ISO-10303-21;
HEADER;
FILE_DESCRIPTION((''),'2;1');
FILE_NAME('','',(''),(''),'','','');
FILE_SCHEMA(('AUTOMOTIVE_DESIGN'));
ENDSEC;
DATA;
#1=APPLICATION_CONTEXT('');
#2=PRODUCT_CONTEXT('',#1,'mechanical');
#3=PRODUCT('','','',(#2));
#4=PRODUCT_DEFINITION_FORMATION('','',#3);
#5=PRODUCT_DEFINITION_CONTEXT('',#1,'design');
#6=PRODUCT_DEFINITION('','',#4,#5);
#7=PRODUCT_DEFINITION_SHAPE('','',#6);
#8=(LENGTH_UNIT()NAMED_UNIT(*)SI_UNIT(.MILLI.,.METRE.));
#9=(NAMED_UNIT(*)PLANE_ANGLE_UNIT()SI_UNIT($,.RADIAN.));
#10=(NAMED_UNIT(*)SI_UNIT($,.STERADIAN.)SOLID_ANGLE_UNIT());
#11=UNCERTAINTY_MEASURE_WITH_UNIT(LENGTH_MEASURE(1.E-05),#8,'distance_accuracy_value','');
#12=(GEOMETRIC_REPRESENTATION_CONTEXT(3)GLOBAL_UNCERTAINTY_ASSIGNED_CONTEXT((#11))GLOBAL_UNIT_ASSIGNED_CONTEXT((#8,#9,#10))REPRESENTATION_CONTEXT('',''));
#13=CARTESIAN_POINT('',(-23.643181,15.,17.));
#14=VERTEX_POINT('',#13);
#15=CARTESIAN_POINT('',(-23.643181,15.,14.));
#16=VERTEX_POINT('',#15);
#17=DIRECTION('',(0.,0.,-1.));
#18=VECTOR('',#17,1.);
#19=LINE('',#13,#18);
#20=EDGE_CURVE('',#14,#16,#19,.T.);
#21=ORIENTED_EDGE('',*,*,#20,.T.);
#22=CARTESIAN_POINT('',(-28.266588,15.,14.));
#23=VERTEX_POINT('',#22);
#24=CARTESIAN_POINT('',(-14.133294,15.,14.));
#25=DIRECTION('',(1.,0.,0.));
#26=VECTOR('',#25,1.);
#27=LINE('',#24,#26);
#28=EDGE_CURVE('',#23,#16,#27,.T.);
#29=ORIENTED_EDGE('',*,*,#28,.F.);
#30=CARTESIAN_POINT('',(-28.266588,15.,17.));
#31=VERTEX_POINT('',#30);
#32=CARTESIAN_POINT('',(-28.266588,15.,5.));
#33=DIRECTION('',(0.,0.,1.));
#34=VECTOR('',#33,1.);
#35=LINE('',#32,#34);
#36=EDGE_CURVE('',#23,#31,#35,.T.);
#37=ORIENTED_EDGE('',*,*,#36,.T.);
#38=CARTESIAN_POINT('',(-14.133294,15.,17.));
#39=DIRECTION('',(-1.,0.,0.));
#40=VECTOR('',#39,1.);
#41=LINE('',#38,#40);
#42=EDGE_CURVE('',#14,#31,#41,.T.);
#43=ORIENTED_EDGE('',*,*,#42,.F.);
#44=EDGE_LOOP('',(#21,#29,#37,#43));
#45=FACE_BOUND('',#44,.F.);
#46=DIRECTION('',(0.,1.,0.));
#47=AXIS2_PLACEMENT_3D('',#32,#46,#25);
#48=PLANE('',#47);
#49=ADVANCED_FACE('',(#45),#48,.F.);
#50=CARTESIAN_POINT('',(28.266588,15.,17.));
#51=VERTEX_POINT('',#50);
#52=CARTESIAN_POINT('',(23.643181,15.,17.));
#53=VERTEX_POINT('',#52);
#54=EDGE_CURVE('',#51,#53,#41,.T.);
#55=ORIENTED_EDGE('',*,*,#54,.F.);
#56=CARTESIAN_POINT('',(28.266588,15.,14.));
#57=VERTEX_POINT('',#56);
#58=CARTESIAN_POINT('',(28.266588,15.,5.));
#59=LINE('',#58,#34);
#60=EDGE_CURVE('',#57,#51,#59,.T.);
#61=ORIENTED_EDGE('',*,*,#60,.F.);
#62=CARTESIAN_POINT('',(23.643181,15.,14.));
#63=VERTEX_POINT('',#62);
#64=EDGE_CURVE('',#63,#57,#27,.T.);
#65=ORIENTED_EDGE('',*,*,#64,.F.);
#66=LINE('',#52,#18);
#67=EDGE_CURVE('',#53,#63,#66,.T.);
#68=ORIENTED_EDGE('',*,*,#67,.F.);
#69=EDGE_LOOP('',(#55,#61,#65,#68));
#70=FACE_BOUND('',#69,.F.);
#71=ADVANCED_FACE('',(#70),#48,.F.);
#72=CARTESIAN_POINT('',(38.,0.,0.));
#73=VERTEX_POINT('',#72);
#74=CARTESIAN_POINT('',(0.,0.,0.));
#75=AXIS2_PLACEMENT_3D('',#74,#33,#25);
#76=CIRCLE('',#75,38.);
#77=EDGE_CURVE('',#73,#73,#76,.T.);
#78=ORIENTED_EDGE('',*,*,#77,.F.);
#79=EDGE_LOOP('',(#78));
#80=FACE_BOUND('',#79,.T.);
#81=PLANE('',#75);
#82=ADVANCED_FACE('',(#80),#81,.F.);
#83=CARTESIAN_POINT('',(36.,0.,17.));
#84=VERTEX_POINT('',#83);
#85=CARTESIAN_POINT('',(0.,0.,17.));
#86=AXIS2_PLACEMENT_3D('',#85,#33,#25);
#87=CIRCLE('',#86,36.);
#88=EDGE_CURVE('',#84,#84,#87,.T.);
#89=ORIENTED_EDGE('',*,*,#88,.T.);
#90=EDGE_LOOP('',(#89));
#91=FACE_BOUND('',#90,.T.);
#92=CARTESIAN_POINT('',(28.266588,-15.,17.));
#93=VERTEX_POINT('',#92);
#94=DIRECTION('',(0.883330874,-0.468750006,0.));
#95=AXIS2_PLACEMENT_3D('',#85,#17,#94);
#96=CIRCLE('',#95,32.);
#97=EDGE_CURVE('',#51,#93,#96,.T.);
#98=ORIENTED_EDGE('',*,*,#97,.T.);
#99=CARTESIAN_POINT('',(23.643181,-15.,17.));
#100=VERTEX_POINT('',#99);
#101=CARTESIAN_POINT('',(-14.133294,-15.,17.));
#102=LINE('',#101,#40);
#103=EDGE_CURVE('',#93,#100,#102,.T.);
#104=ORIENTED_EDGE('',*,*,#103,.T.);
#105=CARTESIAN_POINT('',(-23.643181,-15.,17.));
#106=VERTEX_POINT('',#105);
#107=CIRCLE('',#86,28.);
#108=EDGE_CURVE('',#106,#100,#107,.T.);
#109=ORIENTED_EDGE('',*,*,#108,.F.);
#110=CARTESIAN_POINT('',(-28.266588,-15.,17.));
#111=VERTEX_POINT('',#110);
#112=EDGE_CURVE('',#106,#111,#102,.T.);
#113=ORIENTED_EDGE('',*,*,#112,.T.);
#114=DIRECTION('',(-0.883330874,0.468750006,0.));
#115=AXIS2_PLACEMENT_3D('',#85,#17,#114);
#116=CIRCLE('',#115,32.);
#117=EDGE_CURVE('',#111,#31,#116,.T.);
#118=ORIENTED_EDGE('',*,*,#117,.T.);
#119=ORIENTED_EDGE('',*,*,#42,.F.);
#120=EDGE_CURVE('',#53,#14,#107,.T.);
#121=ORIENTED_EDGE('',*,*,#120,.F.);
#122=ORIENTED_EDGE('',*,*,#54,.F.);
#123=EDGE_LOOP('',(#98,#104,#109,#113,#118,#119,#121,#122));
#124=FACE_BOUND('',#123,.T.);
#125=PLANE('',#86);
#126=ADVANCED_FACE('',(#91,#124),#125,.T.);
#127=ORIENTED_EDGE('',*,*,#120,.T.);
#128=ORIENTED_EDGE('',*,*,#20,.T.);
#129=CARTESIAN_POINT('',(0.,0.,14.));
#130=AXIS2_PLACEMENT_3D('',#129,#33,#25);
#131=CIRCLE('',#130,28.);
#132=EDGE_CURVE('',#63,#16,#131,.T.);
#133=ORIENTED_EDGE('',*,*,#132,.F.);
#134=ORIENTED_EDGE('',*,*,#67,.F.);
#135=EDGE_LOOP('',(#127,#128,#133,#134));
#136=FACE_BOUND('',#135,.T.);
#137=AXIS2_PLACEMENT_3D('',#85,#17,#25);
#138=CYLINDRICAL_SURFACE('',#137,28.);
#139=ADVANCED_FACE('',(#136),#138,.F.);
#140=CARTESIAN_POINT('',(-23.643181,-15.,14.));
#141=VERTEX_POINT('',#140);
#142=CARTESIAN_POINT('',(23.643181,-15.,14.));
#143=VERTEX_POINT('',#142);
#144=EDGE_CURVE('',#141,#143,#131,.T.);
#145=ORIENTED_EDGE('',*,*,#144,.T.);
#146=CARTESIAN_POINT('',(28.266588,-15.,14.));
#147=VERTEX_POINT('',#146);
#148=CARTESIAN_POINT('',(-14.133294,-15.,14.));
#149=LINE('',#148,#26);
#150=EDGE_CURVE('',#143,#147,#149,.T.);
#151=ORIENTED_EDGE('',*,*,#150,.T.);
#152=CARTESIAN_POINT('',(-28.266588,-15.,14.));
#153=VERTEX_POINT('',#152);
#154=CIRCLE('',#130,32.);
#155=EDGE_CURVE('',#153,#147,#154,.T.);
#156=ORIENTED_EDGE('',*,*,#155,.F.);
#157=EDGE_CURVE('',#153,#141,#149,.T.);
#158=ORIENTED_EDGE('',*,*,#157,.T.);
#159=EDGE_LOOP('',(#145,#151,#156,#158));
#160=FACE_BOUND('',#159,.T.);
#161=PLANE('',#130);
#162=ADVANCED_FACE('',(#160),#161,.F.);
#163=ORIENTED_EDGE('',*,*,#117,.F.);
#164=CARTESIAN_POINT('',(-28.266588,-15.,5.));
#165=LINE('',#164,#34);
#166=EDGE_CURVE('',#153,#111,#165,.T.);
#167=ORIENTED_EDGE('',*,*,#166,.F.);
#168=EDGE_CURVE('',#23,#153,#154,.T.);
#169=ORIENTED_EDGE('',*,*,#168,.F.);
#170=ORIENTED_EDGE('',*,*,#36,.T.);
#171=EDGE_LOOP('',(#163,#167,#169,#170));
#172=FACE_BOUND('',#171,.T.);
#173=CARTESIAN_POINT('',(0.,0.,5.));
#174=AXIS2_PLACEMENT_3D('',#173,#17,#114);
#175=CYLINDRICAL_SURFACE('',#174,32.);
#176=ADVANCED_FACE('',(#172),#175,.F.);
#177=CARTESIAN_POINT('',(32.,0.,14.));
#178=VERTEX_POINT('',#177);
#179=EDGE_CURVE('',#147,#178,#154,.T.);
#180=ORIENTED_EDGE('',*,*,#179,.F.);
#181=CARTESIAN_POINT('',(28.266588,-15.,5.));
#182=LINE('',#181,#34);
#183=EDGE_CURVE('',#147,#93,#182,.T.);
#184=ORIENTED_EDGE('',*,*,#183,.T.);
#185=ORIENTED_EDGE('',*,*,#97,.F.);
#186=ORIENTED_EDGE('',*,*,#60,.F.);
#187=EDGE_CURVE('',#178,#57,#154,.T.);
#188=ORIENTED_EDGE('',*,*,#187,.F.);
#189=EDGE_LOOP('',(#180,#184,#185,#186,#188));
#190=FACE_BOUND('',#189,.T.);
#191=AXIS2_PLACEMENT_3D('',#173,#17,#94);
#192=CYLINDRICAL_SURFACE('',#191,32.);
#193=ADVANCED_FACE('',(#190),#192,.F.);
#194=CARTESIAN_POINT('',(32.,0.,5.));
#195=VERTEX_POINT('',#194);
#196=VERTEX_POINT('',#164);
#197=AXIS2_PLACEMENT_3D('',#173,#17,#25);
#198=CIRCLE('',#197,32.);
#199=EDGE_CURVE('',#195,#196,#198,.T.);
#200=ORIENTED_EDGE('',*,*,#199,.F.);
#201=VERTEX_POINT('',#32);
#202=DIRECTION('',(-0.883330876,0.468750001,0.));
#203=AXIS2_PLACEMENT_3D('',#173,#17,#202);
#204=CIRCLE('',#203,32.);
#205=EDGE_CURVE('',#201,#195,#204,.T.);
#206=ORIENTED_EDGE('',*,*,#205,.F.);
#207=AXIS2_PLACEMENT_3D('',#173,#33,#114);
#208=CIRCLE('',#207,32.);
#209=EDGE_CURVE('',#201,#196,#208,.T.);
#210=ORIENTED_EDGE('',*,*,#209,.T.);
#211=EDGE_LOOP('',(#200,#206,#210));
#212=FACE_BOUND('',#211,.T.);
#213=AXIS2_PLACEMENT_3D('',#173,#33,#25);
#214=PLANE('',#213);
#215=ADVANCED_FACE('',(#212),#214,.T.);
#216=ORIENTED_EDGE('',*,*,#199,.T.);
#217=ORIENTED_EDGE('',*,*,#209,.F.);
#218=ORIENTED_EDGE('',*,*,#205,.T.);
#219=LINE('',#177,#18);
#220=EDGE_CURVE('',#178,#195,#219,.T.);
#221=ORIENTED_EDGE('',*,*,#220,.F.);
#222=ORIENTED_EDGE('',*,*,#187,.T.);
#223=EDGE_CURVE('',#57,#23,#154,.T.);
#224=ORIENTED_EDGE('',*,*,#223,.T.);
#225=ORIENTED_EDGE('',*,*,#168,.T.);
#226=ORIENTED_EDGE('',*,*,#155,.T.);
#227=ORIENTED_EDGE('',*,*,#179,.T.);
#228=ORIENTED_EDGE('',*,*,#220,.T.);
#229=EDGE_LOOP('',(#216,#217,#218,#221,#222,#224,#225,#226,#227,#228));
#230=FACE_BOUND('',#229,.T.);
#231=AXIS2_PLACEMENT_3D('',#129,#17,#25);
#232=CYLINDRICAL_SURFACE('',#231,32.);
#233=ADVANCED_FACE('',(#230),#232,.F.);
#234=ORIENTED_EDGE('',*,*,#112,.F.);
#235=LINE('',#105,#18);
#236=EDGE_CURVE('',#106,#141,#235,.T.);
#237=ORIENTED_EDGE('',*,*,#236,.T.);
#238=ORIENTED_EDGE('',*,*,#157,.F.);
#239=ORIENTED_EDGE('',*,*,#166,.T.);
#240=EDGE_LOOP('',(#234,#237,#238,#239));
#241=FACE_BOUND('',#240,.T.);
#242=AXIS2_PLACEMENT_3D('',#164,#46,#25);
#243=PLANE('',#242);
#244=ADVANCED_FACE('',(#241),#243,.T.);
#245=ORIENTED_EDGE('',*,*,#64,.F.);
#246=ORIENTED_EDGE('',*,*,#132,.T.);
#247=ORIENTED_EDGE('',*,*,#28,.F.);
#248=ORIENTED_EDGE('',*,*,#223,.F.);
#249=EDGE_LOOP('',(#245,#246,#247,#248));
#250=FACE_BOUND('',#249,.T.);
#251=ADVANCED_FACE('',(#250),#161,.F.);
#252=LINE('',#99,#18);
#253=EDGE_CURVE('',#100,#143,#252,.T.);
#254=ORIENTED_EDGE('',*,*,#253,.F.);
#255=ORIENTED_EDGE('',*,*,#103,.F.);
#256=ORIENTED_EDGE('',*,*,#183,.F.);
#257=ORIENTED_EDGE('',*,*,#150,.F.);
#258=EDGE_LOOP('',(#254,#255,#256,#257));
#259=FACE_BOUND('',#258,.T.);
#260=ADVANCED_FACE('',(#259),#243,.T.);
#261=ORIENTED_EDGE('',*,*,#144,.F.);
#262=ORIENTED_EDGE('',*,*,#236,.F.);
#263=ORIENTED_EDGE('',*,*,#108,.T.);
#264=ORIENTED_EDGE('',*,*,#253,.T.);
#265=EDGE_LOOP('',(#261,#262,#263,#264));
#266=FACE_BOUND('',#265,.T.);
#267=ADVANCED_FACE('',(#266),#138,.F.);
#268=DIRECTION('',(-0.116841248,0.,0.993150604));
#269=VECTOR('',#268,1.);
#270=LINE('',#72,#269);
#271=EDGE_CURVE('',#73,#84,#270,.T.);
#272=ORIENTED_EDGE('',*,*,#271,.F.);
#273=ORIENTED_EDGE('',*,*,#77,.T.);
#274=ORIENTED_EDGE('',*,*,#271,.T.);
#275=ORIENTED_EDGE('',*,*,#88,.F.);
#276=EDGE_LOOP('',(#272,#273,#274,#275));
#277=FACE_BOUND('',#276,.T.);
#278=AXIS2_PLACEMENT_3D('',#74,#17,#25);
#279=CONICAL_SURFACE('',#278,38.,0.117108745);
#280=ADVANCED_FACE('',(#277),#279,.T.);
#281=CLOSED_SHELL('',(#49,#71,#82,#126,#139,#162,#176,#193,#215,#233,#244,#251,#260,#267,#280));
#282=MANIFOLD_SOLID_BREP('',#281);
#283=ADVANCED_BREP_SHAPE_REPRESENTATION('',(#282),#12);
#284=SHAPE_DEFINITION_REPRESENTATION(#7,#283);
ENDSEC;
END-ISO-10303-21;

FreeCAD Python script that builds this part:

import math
import FreeCAD as App
import Part
import Sketcher
from FreeCAD import Vector


def add_polygon(sketch, points):
    """Adds a closed chain of lines whose ends are joined by coincident constraints."""
    first, n = sketch.GeometryCount, len(points)
    for a, b in zip(points, points[1:] + points[:1]):
        sketch.addGeometry(Part.LineSegment(App.Vector(*a, 0), App.Vector(*b, 0)), False)
    for i in range(n):
        sketch.addConstraint(Sketcher.Constraint("Coincident", first + i, 2, first + (i + 1) % n, 1))

doc = App.newDocument("Part")
body = doc.addObject("PartDesign::Body", "Body")

# Sketch on XZ plane
sketch1 = doc.addObject("Sketcher::SketchObject", "Sketch")
body.addObject(sketch1)
sketch1.AttachmentSupport = (doc.XZ_Plane, [""])
sketch1.MapMode = "FlatFace"
add_polygon(sketch1, [(0, 0), (38, 0), (36, 17), (28, 17), (28, 14), (32, 14), (32, 5), (0, 5)])  # lines 0-7
sketch1.addConstraint([
    Sketcher.Constraint("Horizontal", 0),
    Sketcher.Constraint("Horizontal", 2),
    Sketcher.Constraint("Vertical", 3),
    Sketcher.Constraint("Horizontal", 4),
    Sketcher.Constraint("Vertical", 5),
    Sketcher.Constraint("Horizontal", 6),
    Sketcher.Constraint("Vertical", 7),
    Sketcher.Constraint("Coincident", 7, 2, -1, 1),
    Sketcher.Constraint("DistanceX", 0, 1, 0, 2, 38.0),
    Sketcher.Constraint("DistanceX", 2, 2, 2, 1, 8.0),
    Sketcher.Constraint("DistanceX", 4, 1, 4, 2, 4.0),
    Sketcher.Constraint("DistanceX", 6, 2, 6, 1, 32.0),
    Sketcher.Constraint("DistanceY", 3, 2, 3, 1, 3.0),
    Sketcher.Constraint("DistanceY", 5, 2, 5, 1, 9.0),
    Sketcher.Constraint("DistanceY", 7, 2, 7, 1, 5.0),
])
revolution = doc.addObject("PartDesign::Revolution", "Revolution")
body.addObject(revolution)
revolution.Profile = sketch1
revolution.ReferenceAxis = (sketch1, ["V_Axis"])
revolution.Angle = 360

# Sketch on XY plane
sketch2 = doc.addObject("Sketcher::SketchObject", "Sketch001")
body.addObject(sketch2)
sketch2.AttachmentSupport = (doc.XY_Plane, [""])
sketch2.MapMode = "FlatFace"
sketch2.AttachmentOffset = App.Placement(Vector(0, 0, 5), App.Rotation())
sketch2.addGeometry([
    Part.ArcOfCircle(Part.Circle(Vector(0, 0, 0), Vector(0, 0, 1), 32), math.radians(152.046813), math.radians(207.953187)),
    Part.LineSegment(Vector(-28.266588, -15, 0), Vector(28.266588, -15, 0)),
    Part.ArcOfCircle(Part.Circle(Vector(0, 0, 0), Vector(0, 0, 1), 32), math.radians(-27.953187), math.radians(27.953187)),
    Part.LineSegment(Vector(28.266588, 15, 0), Vector(-28.266588, 15, 0)),
], False)
sketch2.addConstraint([
    Sketcher.Constraint("Coincident", 0, 2, 1, 1),
    Sketcher.Constraint("Coincident", 1, 2, 2, 1),
    Sketcher.Constraint("Coincident", 2, 2, 3, 1),
    Sketcher.Constraint("Coincident", 3, 2, 0, 1),
    Sketcher.Constraint("Horizontal", 1),
    Sketcher.Constraint("Horizontal", 3),
    Sketcher.Constraint("Coincident", 0, 3, -1, 1),
    Sketcher.Constraint("Coincident", 2, 3, -1, 1),
    Sketcher.Constraint("Equal", 0, 2),
    Sketcher.Constraint("Vertical", 1, 2, 2, 2),
    Sketcher.Constraint("Radius", 0, 32.0),
    Sketcher.Constraint("DistanceY", 0, 2, -1, 1, 15.0),
])
pocket1 = doc.addObject("PartDesign::Pocket", "Pocket")
body.addObject(pocket1)
pocket1.Profile = sketch2
pocket1.Type = "ThroughAll"
pocket1.Reversed = True

doc.recompute()
